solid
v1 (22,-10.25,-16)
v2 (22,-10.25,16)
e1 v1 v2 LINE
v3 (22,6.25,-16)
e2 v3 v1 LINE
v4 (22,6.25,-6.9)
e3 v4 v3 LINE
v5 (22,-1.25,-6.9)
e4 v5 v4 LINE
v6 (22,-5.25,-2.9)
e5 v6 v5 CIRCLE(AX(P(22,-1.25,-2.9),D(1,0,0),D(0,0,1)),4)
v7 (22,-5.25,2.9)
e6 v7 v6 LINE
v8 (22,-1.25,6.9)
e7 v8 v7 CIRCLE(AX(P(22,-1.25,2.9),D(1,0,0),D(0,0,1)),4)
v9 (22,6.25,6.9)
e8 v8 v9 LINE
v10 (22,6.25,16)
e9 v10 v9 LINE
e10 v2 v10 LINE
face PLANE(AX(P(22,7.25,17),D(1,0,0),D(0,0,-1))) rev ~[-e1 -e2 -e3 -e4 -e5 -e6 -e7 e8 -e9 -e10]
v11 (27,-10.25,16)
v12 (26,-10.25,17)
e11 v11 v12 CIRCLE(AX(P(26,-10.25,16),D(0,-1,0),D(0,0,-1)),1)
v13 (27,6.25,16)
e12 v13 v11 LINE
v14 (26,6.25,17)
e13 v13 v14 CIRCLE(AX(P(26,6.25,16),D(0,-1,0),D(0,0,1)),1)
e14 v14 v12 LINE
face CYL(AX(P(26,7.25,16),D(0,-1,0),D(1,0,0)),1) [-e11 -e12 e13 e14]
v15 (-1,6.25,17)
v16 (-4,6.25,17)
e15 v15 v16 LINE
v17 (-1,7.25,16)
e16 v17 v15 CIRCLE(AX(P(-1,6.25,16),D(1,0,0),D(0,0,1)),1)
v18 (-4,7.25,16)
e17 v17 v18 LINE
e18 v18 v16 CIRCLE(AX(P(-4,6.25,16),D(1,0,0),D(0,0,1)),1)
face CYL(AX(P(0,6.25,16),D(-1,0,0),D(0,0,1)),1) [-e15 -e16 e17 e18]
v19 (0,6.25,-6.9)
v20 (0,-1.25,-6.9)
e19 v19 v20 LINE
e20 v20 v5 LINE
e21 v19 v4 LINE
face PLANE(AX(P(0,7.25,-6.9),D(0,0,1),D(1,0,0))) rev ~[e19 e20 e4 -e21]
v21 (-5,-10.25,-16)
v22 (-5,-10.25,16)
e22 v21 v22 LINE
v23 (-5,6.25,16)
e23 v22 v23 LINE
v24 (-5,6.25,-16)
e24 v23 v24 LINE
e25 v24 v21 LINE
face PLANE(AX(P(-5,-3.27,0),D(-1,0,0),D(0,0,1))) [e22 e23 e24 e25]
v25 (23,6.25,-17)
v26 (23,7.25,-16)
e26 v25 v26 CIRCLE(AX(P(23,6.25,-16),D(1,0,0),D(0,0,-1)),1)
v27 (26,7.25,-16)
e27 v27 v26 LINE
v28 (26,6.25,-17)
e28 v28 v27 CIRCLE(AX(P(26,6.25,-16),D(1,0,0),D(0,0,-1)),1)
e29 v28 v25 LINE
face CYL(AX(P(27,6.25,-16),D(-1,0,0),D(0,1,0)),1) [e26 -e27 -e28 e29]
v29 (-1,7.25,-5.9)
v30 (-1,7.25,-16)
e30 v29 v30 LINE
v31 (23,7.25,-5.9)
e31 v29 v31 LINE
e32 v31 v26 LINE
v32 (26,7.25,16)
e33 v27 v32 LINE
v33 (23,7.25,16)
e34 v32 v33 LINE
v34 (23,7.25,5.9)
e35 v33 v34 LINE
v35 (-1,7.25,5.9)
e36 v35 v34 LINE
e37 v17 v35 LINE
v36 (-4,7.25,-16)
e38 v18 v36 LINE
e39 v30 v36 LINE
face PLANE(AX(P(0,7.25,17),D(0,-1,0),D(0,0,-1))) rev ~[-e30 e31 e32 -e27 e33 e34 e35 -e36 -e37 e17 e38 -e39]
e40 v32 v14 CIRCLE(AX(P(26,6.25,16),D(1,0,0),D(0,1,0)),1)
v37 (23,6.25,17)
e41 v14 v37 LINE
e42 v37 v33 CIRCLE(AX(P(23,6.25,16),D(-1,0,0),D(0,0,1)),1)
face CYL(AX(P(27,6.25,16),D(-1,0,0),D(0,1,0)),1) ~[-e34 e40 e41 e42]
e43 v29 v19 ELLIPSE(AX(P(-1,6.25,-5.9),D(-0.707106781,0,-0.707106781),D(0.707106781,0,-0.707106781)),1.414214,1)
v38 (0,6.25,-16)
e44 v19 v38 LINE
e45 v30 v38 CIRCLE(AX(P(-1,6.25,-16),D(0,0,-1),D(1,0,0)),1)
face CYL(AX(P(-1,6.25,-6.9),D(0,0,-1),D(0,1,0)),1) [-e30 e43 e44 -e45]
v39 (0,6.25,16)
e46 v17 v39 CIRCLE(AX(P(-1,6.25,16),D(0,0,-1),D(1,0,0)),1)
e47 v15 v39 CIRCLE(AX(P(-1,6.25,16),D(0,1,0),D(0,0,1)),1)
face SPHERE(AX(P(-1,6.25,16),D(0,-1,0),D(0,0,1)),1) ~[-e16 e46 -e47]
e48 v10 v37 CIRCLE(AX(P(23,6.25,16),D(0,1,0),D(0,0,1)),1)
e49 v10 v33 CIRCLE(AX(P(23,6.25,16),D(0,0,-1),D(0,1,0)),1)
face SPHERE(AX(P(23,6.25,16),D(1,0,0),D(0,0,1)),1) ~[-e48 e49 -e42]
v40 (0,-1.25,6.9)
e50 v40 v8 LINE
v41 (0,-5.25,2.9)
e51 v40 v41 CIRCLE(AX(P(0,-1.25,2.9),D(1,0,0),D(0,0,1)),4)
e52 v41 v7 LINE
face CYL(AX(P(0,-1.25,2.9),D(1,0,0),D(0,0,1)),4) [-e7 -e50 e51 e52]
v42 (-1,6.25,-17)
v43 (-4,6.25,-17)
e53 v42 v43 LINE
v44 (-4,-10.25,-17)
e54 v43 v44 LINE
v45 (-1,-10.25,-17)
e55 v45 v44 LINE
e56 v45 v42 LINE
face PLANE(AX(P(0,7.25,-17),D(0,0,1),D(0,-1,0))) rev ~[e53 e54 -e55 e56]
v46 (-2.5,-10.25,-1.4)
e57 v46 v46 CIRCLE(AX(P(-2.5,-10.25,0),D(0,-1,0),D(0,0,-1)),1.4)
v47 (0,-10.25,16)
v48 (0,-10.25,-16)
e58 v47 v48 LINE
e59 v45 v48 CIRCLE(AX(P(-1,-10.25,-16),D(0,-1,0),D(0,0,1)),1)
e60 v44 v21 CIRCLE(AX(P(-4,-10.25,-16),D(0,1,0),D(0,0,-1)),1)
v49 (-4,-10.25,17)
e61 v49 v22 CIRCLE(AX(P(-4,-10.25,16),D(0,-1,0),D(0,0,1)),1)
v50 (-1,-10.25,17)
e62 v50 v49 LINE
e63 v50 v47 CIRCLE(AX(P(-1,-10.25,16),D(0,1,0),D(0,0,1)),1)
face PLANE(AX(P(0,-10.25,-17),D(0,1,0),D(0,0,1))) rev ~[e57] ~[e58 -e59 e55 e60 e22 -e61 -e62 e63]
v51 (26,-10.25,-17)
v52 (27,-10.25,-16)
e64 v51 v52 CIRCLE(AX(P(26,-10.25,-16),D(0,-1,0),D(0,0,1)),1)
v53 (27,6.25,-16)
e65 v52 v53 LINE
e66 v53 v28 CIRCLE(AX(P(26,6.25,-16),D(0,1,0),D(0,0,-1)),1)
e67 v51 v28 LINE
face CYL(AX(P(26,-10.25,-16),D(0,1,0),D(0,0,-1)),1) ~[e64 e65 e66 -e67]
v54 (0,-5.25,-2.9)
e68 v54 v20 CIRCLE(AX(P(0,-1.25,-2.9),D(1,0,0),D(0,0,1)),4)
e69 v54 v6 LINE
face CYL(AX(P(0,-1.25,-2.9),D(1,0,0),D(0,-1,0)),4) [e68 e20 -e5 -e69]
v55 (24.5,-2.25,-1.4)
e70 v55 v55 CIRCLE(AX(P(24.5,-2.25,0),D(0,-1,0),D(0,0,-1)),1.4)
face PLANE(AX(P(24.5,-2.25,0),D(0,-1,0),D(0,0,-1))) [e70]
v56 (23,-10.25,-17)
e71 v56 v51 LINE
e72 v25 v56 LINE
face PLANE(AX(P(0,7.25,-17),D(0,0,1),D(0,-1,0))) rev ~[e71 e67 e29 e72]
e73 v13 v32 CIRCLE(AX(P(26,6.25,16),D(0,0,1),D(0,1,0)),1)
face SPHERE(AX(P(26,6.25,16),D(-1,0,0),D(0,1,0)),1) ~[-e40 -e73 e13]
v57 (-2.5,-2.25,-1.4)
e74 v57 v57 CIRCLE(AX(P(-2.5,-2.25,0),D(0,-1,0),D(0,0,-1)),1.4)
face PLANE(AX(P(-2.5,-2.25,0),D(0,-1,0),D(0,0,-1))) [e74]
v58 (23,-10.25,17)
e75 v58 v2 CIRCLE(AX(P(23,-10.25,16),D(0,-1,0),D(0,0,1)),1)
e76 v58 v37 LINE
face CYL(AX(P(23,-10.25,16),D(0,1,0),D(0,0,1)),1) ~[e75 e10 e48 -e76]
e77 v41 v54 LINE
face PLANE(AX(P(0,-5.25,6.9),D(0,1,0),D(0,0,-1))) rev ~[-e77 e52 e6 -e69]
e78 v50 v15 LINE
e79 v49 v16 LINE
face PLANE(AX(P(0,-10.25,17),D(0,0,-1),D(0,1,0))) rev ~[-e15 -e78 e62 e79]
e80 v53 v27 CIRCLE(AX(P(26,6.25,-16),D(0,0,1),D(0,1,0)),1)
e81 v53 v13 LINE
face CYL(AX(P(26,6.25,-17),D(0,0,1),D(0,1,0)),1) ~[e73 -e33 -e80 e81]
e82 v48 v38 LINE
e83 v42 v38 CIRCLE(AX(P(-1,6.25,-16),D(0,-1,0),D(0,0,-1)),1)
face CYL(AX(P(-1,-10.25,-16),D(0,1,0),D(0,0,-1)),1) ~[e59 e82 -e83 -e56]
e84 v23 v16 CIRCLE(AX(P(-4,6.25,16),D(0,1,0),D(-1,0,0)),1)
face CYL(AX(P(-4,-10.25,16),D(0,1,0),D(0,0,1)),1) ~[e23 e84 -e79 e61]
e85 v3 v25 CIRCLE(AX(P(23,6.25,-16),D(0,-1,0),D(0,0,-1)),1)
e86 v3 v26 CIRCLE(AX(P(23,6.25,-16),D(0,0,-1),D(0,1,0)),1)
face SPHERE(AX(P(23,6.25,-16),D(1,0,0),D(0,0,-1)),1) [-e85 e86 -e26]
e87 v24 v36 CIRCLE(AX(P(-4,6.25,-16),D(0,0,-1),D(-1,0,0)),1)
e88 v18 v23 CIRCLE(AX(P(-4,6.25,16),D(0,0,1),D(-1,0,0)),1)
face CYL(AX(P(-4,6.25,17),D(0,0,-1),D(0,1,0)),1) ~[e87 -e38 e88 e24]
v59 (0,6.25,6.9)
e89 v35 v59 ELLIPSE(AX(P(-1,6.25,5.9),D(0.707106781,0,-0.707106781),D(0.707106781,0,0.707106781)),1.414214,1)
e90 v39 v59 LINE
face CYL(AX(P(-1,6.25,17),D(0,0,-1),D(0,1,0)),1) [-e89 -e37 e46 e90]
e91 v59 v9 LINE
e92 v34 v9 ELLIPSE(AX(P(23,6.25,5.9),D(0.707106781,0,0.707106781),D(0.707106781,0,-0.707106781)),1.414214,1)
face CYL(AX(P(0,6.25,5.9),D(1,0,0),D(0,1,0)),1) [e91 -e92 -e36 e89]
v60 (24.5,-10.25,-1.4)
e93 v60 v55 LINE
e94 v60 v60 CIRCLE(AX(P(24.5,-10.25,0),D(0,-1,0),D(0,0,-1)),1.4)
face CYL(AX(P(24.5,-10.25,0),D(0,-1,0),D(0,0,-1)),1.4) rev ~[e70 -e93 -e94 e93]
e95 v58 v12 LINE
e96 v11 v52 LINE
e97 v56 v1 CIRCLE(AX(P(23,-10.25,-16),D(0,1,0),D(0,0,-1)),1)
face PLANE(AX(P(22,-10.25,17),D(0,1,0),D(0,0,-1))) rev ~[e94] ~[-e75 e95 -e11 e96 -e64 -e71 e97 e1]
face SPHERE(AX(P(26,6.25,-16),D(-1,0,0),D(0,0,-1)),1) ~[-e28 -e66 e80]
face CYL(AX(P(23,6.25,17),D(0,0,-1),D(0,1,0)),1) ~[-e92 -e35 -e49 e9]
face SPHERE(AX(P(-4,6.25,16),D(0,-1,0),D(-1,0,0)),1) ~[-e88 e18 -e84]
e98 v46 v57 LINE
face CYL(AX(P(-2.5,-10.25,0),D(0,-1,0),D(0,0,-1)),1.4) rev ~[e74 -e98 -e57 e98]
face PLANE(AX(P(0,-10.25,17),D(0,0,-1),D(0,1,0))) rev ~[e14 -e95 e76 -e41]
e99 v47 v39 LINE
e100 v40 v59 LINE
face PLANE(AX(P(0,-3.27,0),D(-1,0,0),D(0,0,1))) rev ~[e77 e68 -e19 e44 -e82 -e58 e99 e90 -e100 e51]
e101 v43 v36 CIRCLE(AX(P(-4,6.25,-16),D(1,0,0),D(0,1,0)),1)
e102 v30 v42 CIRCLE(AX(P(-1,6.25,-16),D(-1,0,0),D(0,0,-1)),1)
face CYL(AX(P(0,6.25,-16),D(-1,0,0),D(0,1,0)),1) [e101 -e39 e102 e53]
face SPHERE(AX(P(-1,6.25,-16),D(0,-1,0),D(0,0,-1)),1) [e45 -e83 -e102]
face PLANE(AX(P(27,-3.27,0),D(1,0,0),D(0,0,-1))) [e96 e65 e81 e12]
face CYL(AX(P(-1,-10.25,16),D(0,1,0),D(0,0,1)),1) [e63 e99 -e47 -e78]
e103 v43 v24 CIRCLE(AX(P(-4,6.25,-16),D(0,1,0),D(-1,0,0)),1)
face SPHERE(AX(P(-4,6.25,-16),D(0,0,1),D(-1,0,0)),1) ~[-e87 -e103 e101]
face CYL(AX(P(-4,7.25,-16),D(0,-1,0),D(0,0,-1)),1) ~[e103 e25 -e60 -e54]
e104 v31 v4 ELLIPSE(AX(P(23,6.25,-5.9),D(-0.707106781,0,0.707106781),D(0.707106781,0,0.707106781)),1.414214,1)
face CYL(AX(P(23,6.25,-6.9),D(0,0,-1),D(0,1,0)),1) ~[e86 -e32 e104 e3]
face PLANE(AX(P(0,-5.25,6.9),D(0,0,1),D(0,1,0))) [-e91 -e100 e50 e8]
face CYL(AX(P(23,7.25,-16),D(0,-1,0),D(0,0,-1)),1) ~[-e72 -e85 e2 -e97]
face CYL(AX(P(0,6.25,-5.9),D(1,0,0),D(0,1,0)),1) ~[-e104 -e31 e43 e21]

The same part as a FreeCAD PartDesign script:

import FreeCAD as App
import Part
import Sketcher
from FreeCAD import Vector


def edges_at(feature, points):
    """Names of the edges that pass closest to the given points."""
    edges = feature.Shape.Edges
    near = lambda p: min(range(len(edges)), key=lambda i: edges[i].distToShape(Part.Vertex(*p))[0])
    return sorted({f"Edge{near(p) + 1}" for p in points})


def add_polygon(sketch, points):
    """Adds a closed chain of lines whose ends are joined by coincident constraints."""
    first, n = sketch.GeometryCount, len(points)
    for a, b in zip(points, points[1:] + points[:1]):
        sketch.addGeometry(Part.LineSegment(App.Vector(*a, 0), App.Vector(*b, 0)), False)
    for i in range(n):
        sketch.addConstraint(Sketcher.Constraint("Coincident", first + i, 2, first + (i + 1) % n, 1))

doc = App.newDocument("Part")
body = doc.addObject("PartDesign::Body", "Body")

# Sketch on YZ plane
sketch1 = body.newObject("Sketcher::SketchObject", "Sketch")
sketch1.AttachmentSupport = (doc.getObject("YZ_Plane"), [""])
sketch1.MapMode = "FlatFace"
add_polygon(sketch1, [(5.25, -17), (7.25, -17), (7.25, 17), (5.25, 17), (5.25, 6.9), (-5.25, 6.9), (-5.25, -6.9), (5.25, -6.9)])  # lines 0-7
sketch1.addConstraint([
    Sketcher.Constraint("Horizontal", 0),
    Sketcher.Constraint("Vertical", 1),
    Sketcher.Constraint("Horizontal", 2),
    Sketcher.Constraint("Vertical", 3),
    Sketcher.Constraint("Horizontal", 4),
    Sketcher.Constraint("Vertical", 5),
    Sketcher.Constraint("Horizontal", 6),
    Sketcher.Constraint("Vertical", 7),
    Sketcher.Constraint("Symmetric", 3, 2, 5, 2, -1, 1),
    Sketcher.Constraint("Symmetric", 2, 2, 7, 2, -1),
    Sketcher.Constraint("DistanceX", 0, 1, 0, 2, 2.0),
    Sketcher.Constraint("DistanceY", 1, 1, 1, 2, 34.0),
    Sketcher.Constraint("DistanceX", 4, 2, 4, 1, 10.5),
    Sketcher.Constraint("DistanceY", 3, 2, 3, 1, 10.1),
])
pad1 = body.newObject("PartDesign::Pad", "Pad")
pad1.Profile = sketch1
pad1.Length = 22

# Sketch on YZ plane
sketch2 = body.newObject("Sketcher::SketchObject", "Sketch001")
sketch2.AttachmentSupport = (doc.getObject("YZ_Plane"), [""])
sketch2.MapMode = "FlatFace"
sketch2.AttachmentOffset = App.Placement(Vector(0, 0, 22), App.Rotation())
add_polygon(sketch2, [(-10.25, 17), (-10.25, -17), (7.25, -17), (7.25, 17)])  # lines 0-3
sketch2.addConstraint([
    Sketcher.Constraint("Vertical", 0),
    Sketcher.Constraint("Horizontal", 1),
    Sketcher.Constraint("Vertical", 2),
    Sketcher.Constraint("Horizontal", 3),
    Sketcher.Constraint("DistanceY", 0, 2, 0, 1, 34.0),
    Sketcher.Constraint("DistanceX", 1, 1, 1, 2, 17.5),
    Sketcher.Constraint("DistanceY", 0, 2, -1, 1, 17.0),
    Sketcher.Constraint("DistanceX", 0, 2, -1, 1, 10.25),
])
pad2 = body.newObject("PartDesign::Pad", "Pad001")
pad2.Profile = sketch2
pad2.Length = 5

# Sketch on YZ plane
sketch3 = body.newObject("Sketcher::SketchObject", "Sketch002")
sketch3.AttachmentSupport = (doc.getObject("YZ_Plane"), [""])
sketch3.MapMode = "FlatFace"
add_polygon(sketch3, [(-10.25, 17), (7.25, 17), (7.25, -17), (-10.25, -17)])  # lines 0-3
sketch3.addConstraint([
    Sketcher.Constraint("Horizontal", 0),
    Sketcher.Constraint("Vertical", 1),
    Sketcher.Constraint("Horizontal", 2),
    Sketcher.Constraint("Vertical", 3),
    Sketcher.Constraint("DistanceY", 1, 2, 1, 1, 34.0),
    Sketcher.Constraint("DistanceX", 0, 1, 0, 2, 17.5),
    Sketcher.Constraint("DistanceY", -1, 1, 0, 2, 17.0),
    Sketcher.Constraint("DistanceX", -1, 1, 0, 2, 7.25),
])
pad3 = body.newObject("PartDesign::Pad", "Pad002")
pad3.Profile = sketch3
pad3.Length = 5
pad3.Reversed = True

# Sketch on XZ plane
sketch4 = body.newObject("Sketcher::SketchObject", "Sketch003")
sketch4.AttachmentSupport = (doc.getObject("XZ_Plane"), [""])
sketch4.MapMode = "FlatFace"
sketch4.AttachmentOffset = App.Placement(Vector(0, 0, 10.25), App.Rotation())
sketch4.addGeometry([
    Part.Circle(Vector(-2.5, 0, 0), Vector(0, 0, 1), 1.4),
    Part.Circle(Vector(24.5, 0, 0), Vector(0, 0, 1), 1.4),
], False)
sketch4.addConstraint([
    Sketcher.Constraint("Equal", 0, 1),
    Sketcher.Constraint("PointOnObject", 0, 3, -1),
    Sketcher.Constraint("PointOnObject", 1, 3, -1),
    Sketcher.Constraint("Diameter", 0, 2.8),
    Sketcher.Constraint("DistanceX", 0, 3, 1, 3, 27.0),
    Sketcher.Constraint("DistanceX", 0, 3, -1, 1, 2.5),
])
pocket1 = body.newObject("PartDesign::Pocket", "Pocket")
pocket1.Profile = sketch4
pocket1.Length = 8

# Sketch on XZ plane
sketch5 = body.newObject("Sketcher::SketchObject", "Sketch004")
sketch5.AttachmentSupport = (doc.getObject("XZ_Plane"), [""])
sketch5.MapMode = "FlatFace"
sketch5.AttachmentOffset = App.Placement(Vector(0, 0, -7.25), App.Rotation())
add_polygon(sketch5, [(0, 6.9), (0, 17), (22, 17), (22, 6.9)])  # lines 0-3
add_polygon(sketch5, [(0, -17), (0, -6.9), (22, -6.9), (22, -17)])  # lines 4-7
sketch5.addConstraint([
    Sketcher.Constraint("Vertical", 0),
    Sketcher.Constraint("Horizontal", 1),
    Sketcher.Constraint("Vertical", 2),
    Sketcher.Constraint("Horizontal", 3),
    Sketcher.Constraint("Vertical", 4),
    Sketcher.Constraint("Horizontal", 5),
    Sketcher.Constraint("Vertical", 6),
    Sketcher.Constraint("Horizontal", 7),
    Sketcher.Constraint("Symmetric", 3, 2, 4, 2, -1, 1),
    Sketcher.Constraint("Symmetric", 1, 2, 6, 2, -1),
    Sketcher.Constraint("PointOnObject", 0, 2, -2),
    Sketcher.Constraint("DistanceX", 1, 1, 1, 2, 22.0),
    Sketcher.Constraint("DistanceY", 0, 1, 0, 2, 10.1),
    Sketcher.Constraint("DistanceY", -1, 1, 0, 2, 17.0),
])
pocket2 = body.newObject("PartDesign::Pocket", "Pocket001")
pocket2.Profile = sketch5
pocket2.Type = "ThroughAll"
pocket2.Reversed = True
doc.recompute()

fillet = body.newObject("PartDesign::Fillet", "Fillet")
fillet.Base = (pocket2, edges_at(pocket2, [
    (24.5, 7.25, 17),
    (24.5, 7.25, -17),
    (22, -1.5, -17),
    (27, -1.5, -17),
    (22, -1.5, 17),
    (27, 7.25, 0),
    (27, -1.5, 17),
    (-5, -1.5, 17),
    (0, -1.5, -17),
    (-5, 7.25, 0),
    (-5, -1.5, -17),
    (0, -1.5, 17),
    (-2.5, 7.25, 17),
    (-2.5, 7.25, -17),
    (22, 7.25, 11.95),
    (11, 7.25, 6.9),
    (0, 7.25, 11.95),
    (11, 7.25, -6.9),
    (22, 7.25, -11.95),
    (0, 7.25, -11.95),
]))
fillet.Radius = 1
doc.recompute()

fillet2 = body.newObject("PartDesign::Fillet", "Fillet001")
fillet2.Base = (fillet, edges_at(fillet, [(11, -5.25, -6.9), (11, -5.25, 6.9)]))
fillet2.Radius = 4

doc.recompute()
